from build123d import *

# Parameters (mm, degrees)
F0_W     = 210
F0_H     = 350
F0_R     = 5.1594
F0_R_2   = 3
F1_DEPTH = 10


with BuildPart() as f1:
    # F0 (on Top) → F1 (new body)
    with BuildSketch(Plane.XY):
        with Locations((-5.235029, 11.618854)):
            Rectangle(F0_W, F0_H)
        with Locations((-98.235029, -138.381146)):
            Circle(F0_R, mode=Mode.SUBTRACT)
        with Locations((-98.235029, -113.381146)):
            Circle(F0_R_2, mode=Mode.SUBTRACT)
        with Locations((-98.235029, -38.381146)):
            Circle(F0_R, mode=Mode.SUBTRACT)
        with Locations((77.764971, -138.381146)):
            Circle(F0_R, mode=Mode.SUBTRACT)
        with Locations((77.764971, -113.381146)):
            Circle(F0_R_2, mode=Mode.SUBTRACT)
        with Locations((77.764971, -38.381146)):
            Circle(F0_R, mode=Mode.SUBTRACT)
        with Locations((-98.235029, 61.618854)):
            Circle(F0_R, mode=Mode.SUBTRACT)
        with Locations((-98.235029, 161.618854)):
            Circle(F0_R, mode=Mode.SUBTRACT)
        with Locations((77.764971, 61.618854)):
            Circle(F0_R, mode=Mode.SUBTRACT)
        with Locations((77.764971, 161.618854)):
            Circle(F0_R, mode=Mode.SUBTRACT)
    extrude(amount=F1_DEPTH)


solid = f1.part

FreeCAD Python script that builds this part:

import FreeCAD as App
import Part
import Sketcher

doc = App.newDocument("Part")
body = doc.addObject("PartDesign::Body", "Body")

sketch1 = body.newObject("Sketcher::SketchObject", "Sketch")
sketch1.AttachmentSupport = (doc.getObject("XY_Plane"), [""])
sketch1.MapMode = "FlatFace"
sketch1.addGeometry([
    Part.LineSegment(App.Vector(-110.2, 186.6, 0), App.Vector(-110.2, -163.4, 0)),
    Part.LineSegment(App.Vector(-110.2, -163.4, 0), App.Vector(99.8, -163.4, 0)),
    Part.LineSegment(App.Vector(99.8, -163.4, 0), App.Vector(99.8, 186.6, 0)),
    Part.LineSegment(App.Vector(99.8, 186.6, 0), App.Vector(-110.2, 186.6, 0)),
    Part.Circle(App.Vector(-98.2, -138.4, 0), App.Vector(0, 0, 1), 5.2),
    Part.Circle(App.Vector(-98.2, -113.4, 0), App.Vector(0, 0, 1), 3),
    Part.Circle(App.Vector(-98.2, -38.4, 0), App.Vector(0, 0, 1), 5.2),
    Part.Circle(App.Vector(77.8, -138.4, 0), App.Vector(0, 0, 1), 5.2),
    Part.Circle(App.Vector(77.8, -113.4, 0), App.Vector(0, 0, 1), 3),
    Part.Circle(App.Vector(77.8, -38.4, 0), App.Vector(0, 0, 1), 5.2),
    Part.Circle(App.Vector(-98.2, 61.6, 0), App.Vector(0, 0, 1), 5.2),
    Part.Circle(App.Vector(-98.2, 161.6, 0), App.Vector(0, 0, 1), 5.2),
    Part.Circle(App.Vector(77.8, 61.6, 0), App.Vector(0, 0, 1), 5.2),
    Part.Circle(App.Vector(77.8, 161.6, 0), App.Vector(0, 0, 1), 5.2),
], False)
sketch1.addConstraint([
    Sketcher.Constraint("Coincident", 0, 2, 1, 1),
    Sketcher.Constraint("Coincident", 1, 2, 2, 1),
    Sketcher.Constraint("Coincident", 2, 2, 3, 1),
    Sketcher.Constraint("Coincident", 3, 2, 0, 1),
    Sketcher.Constraint("Vertical", 0),
    Sketcher.Constraint("Horizontal", 1),
    Sketcher.Constraint("Vertical", 2),
    Sketcher.Constraint("Horizontal", 3),
    Sketcher.Constraint("Equal", 4, 6),
    Sketcher.Constraint("Equal", 6, 7),
    Sketcher.Constraint("Equal", 5, 8),
    Sketcher.Constraint("Equal", 7, 9),
    Sketcher.Constraint("Equal", 9, 10),
    Sketcher.Constraint("Equal", 10, 11),
    Sketcher.Constraint("Equal", 11, 12),
    Sketcher.Constraint("Equal", 12, 13),
    Sketcher.Constraint("Horizontal", 4, 3, 7, 3),
    Sketcher.Constraint("Horizontal", 5, 3, 8, 3),
    Sketcher.Constraint("Horizontal", 6, 3, 9, 3),
    Sketcher.Constraint("Horizontal", 10, 3, 12, 3),
    Sketcher.Constraint("Horizontal", 11, 3, 13, 3),
    Sketcher.Constraint("Vertical", 4, 3, 5, 3),
    Sketcher.Constraint("Vertical", 5, 3, 6, 3),
    Sketcher.Constraint("Vertical", 7, 3, 8, 3),
    Sketcher.Constraint("Vertical", 8, 3, 9, 3),
    Sketcher.Constraint("Vertical", 6, 3, 10, 3),
    Sketcher.Constraint("Vertical", 10, 3, 11, 3),
    Sketcher.Constraint("Vertical", 9, 3, 12, 3),
    Sketcher.Constraint("Vertical", 12, 3, 13, 3),
    Sketcher.Constraint("Diameter", 5, 6.0),
    Sketcher.Constraint("DistanceX", 1, 1, 1, 2, 210.0),
    Sketcher.Constraint("DistanceY", 0, 2, 0, 1, 350.0),
    Sketcher.Constraint("DistanceY", 4, 3, 5, 3, 25.0),
    Sketcher.Constraint("DistanceY", 5, 3, 6, 3, 75.0),
    Sketcher.Constraint("DistanceX", 4, 3, 7, 3, 176.0),
    Sketcher.Constraint("DistanceY", 6, 3, 10, 3, 100.0),
    Sketcher.Constraint("DistanceY", 10, 3, 11, 3, 100.0),
    Sketcher.Constraint("DistanceX", 0, 2, 4, 3, 12.0),
    Sketcher.Constraint("DistanceY", 0, 2, 4, 3, 25.0),
    Sketcher.Constraint("Diameter", 4, 10.3188),
    Sketcher.Constraint("DistanceX", 4, 3, -1, 1, 98.235029),
    Sketcher.Constraint("DistanceY", 4, 3, -1, 1, 138.381146),
])
pad1 = body.newObject("PartDesign::Pad", "Pad")
pad1.Profile = sketch1
pad1.Length = 10

doc.recompute()
